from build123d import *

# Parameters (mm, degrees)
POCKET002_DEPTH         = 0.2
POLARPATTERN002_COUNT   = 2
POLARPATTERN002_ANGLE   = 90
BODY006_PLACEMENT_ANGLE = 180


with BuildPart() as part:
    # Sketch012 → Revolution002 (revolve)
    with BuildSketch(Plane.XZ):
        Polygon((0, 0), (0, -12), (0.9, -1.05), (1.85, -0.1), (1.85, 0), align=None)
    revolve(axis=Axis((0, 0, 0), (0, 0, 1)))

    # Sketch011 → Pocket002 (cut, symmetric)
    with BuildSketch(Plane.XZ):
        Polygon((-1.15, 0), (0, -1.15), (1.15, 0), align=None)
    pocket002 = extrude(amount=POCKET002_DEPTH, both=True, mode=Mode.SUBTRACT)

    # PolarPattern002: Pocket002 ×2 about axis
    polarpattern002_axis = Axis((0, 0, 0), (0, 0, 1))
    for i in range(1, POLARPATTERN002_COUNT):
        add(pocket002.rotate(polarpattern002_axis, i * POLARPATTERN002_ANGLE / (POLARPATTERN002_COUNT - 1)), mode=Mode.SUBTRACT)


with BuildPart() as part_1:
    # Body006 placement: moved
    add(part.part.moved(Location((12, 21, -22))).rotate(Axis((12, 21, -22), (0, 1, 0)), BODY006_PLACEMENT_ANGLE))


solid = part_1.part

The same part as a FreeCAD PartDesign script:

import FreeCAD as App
import Part
import Sketcher
from FreeCAD import Vector
Q = App.Units.Quantity

doc = App.newDocument("Part")
body = doc.addObject("PartDesign::Body", "Body")

sketch1 = body.newObject("Sketcher::SketchObject", "Sketch")
sketch1.AttachmentSupport = (doc.getObject("XZ_Plane"), [""])
sketch1.MapMode = "FlatFace"
sketch1.addGeometry(Part.LineSegment(Vector(0, 0, 0), Vector(0, -12, 0)), False)
sketch1.addGeometry(Part.LineSegment(Vector(0, -12, 0), Vector(0.9, -1.05, 0)), False)
sketch1.addGeometry(Part.LineSegment(Vector(0.9, -1.05, 0), Vector(1.85, -0.1, 0)), False)
sketch1.addGeometry(Part.LineSegment(Vector(1.85, -0.1, 0), Vector(1.85, 0, 0)), False)
sketch1.addGeometry(Part.LineSegment(Vector(1.85, 0, 0), Vector(0, 0, 0)), False)
sketch1.addConstraint(Sketcher.Constraint("Coincident", 0, 2, 1, 1))
sketch1.addConstraint(Sketcher.Constraint("Coincident", 1, 2, 2, 1))
sketch1.addConstraint(Sketcher.Constraint("Coincident", 2, 2, 3, 1))
sketch1.addConstraint(Sketcher.Constraint("Coincident", 3, 2, 4, 1))
sketch1.addConstraint(Sketcher.Constraint("Coincident", 4, 2, 0, 1))
sketch1.addConstraint(Sketcher.Constraint("Vertical", 0))
sketch1.addConstraint(Sketcher.Constraint("Vertical", 3))
sketch1.addConstraint(Sketcher.Constraint("Horizontal", 4))
sketch1.addConstraint(Sketcher.Constraint("Coincident", 4, 2, -1, 1))
sketch1.addConstraint(Sketcher.Constraint("DistanceY", 0, 2, 0, 1, 12.0))
sketch1.addConstraint(Sketcher.Constraint("Angle", 2, Q("45 deg")))
sketch1.addConstraint(Sketcher.Constraint("DistanceY", 3, 1, 3, 2, 0.1))
sketch1.addConstraint(Sketcher.Constraint("DistanceX", 4, 2, 4, 1, 1.85))
sketch1.addConstraint(Sketcher.Constraint("DistanceX", -1, 1, 1, 2, 0.9))
revolution = body.newObject("PartDesign::Revolution", "Revolution")
revolution.Profile = sketch1
revolution.ReferenceAxis = (sketch1, ["V_Axis"])
revolution.Angle = 360

sketch2 = body.newObject("Sketcher::SketchObject", "Sketch001")
sketch2.AttachmentSupport = (doc.getObject("XZ_Plane"), [""])
sketch2.MapMode = "FlatFace"
sketch2.addGeometry(Part.LineSegment(Vector(-1.1, 0, 0), Vector(0, -1.1, 0)), False)
sketch2.addGeometry(Part.LineSegment(Vector(0, -1.1, 0), Vector(1.1, 0, 0)), False)
sketch2.addGeometry(Part.LineSegment(Vector(1.1, 0, 0), Vector(-1.1, 0, 0)), False)
sketch2.addConstraint(Sketcher.Constraint("Coincident", 0, 2, 1, 1))
sketch2.addConstraint(Sketcher.Constraint("Coincident", 1, 2, 2, 1))
sketch2.addConstraint(Sketcher.Constraint("Coincident", 2, 2, 0, 1))
sketch2.addConstraint(Sketcher.Constraint("Horizontal", 2))
sketch2.addConstraint(Sketcher.Constraint("Symmetric", 1, 2, 2, 2, -1, 1))
sketch2.addConstraint(Sketcher.Constraint("PointOnObject", 0, 2, -2))
sketch2.addConstraint(Sketcher.Constraint("Perpendicular", 0, 1))
sketch2.addConstraint(Sketcher.Constraint("DistanceX", 2, 2, 2, 1, 2.3))
pocket1 = body.newObject("PartDesign::Pocket", "Pocket")
pocket1.Profile = sketch2
pocket1.Length = 0.4
pocket1.Midplane = True
doc.recompute()

polarpattern = body.newObject("PartDesign::PolarPattern", "PolarPattern")
polarpattern.Originals = [pocket1]
polarpattern.Axis = (doc.getObject("Z_Axis"), [""])
polarpattern.Angle = 90
polarpattern.Occurrences = 2
body.Tip = polarpattern
body2 = doc.addObject("PartDesign::Body", "Body001")
doc.recompute()

body.Placement = App.Placement(Vector(12, 21, -22), App.Rotation(Vector(0, 1, 0), 180))
boolean = body2.newObject("PartDesign::Boolean", "Boolean")
boolean.Type = "Fuse"
boolean.addObjects([body])

doc.recompute()
